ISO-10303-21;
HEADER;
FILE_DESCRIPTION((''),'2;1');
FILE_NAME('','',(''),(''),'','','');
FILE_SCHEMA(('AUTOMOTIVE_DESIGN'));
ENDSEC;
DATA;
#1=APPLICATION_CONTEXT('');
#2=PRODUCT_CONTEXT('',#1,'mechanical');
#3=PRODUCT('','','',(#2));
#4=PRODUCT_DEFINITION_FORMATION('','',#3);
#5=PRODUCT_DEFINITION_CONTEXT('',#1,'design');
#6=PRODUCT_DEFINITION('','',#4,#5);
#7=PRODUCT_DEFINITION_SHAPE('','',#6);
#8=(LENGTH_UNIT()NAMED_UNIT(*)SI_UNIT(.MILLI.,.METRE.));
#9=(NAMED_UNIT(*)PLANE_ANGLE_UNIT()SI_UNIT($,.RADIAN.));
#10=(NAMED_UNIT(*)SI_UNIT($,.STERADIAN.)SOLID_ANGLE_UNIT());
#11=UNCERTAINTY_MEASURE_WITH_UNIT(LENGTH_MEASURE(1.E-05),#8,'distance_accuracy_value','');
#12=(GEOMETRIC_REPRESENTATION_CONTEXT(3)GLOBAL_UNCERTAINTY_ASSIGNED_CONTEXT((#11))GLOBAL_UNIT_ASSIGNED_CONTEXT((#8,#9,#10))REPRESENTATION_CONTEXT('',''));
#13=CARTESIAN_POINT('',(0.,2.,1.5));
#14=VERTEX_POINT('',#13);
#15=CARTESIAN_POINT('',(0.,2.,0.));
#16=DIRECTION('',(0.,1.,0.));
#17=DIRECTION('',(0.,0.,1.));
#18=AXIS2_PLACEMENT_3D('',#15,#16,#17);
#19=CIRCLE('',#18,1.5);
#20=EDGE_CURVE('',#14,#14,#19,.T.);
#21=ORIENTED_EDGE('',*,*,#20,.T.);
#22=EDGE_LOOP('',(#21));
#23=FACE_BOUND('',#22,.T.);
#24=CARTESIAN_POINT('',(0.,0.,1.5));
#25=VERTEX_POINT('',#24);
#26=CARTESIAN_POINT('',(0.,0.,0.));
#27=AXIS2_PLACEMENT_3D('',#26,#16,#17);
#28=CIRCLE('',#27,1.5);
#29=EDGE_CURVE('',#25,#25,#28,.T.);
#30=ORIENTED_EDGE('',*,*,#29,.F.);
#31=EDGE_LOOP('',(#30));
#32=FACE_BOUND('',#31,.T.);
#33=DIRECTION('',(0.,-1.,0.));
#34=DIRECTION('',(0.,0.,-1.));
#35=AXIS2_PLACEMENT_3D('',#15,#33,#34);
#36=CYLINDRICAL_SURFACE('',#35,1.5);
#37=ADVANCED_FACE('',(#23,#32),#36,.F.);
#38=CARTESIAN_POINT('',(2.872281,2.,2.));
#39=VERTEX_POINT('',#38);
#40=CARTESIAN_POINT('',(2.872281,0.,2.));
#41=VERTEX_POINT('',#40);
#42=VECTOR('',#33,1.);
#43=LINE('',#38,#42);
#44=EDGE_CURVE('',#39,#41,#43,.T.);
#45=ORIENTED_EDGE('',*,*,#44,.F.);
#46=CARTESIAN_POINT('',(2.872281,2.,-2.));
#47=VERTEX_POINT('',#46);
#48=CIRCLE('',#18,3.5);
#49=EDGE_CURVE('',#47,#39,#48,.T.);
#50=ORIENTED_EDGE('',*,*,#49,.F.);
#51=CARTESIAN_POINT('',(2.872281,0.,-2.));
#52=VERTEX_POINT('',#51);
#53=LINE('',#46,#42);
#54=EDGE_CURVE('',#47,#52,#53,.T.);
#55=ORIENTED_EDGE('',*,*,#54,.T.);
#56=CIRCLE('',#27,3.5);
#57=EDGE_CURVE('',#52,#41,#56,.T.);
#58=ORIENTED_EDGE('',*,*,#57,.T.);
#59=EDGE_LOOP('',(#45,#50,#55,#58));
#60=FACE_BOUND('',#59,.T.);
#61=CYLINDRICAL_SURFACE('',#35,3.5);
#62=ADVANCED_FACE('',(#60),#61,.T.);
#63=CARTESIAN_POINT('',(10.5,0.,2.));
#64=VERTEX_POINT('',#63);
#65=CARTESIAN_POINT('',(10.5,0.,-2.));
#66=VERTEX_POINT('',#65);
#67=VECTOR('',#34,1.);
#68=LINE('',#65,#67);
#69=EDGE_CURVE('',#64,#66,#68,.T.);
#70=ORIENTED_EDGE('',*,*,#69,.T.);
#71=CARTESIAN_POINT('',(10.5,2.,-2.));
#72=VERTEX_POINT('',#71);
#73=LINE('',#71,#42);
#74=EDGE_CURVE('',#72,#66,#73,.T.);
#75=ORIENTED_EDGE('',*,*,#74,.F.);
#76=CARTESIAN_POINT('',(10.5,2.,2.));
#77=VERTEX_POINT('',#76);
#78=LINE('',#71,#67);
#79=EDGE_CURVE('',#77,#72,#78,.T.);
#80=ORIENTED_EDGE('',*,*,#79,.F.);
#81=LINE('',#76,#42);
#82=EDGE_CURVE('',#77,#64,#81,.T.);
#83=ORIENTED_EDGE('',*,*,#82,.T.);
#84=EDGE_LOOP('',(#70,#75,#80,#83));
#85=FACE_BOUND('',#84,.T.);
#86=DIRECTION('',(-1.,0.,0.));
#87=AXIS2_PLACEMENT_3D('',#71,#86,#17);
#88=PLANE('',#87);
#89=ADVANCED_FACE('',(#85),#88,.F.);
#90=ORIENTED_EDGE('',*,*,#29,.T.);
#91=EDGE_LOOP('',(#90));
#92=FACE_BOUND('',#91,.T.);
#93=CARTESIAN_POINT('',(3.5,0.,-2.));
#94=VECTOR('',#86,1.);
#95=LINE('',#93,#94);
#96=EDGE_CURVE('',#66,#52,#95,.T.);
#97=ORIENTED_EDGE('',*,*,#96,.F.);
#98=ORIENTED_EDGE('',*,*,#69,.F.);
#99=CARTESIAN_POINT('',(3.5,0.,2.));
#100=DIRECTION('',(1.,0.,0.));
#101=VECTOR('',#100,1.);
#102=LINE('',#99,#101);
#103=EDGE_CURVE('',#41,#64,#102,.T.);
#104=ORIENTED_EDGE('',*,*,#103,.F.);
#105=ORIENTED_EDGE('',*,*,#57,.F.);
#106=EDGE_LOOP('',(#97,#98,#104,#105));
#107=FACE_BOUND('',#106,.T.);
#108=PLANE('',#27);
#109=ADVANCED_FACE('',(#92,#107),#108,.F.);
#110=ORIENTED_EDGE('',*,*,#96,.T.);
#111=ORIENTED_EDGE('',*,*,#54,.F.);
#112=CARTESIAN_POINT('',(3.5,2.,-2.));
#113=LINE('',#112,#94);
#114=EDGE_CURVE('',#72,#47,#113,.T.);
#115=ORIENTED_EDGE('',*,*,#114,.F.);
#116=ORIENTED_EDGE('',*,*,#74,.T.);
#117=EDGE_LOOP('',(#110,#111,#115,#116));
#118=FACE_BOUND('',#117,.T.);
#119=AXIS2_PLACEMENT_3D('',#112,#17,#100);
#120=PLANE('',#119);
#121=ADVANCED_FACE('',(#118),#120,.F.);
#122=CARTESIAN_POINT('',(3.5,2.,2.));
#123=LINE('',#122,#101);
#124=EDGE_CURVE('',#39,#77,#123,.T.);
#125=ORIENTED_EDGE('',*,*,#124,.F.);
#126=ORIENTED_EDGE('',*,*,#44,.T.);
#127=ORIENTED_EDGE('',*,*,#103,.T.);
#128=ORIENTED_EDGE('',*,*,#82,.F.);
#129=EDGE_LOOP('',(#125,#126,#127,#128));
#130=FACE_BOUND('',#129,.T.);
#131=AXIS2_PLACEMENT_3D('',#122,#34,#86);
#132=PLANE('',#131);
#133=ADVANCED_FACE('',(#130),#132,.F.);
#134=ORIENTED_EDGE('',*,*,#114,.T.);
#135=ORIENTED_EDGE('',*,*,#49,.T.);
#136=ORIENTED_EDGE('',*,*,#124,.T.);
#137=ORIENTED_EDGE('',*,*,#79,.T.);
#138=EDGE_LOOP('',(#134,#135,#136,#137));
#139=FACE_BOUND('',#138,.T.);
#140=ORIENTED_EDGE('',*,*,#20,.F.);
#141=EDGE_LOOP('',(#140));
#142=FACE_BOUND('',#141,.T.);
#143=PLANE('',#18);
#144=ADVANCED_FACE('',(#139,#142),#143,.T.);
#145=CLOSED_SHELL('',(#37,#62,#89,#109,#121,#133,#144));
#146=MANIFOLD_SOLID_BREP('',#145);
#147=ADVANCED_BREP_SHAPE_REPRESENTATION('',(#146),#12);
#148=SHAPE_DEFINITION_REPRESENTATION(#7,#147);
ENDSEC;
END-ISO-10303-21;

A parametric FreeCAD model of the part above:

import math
import FreeCAD as App
import Part
import Sketcher
from FreeCAD import Vector

doc = App.newDocument("Part")
body = doc.addObject("PartDesign::Body", "Body")

sketch1 = body.newObject("Sketcher::SketchObject", "Sketch")
sketch1.AttachmentSupport = (doc.getObject("XZ_Plane"), [""])
sketch1.MapMode = "FlatFace"
sketch1.addGeometry([
    Part.LineSegment(Vector(10.5, 2, 0), Vector(10.5, -2, 0)),
    Part.LineSegment(Vector(10.5, -2, 0), Vector(2.9, -2, 0)),
    Part.ArcOfCircle(Part.Circle(Vector(0, 0, 0), Vector(0, 0, 1), 3.5), math.radians(35), math.radians(325)),
    Part.LineSegment(Vector(2.9, 2, 0), Vector(10.5, 2, 0)),
    Part.Circle(Vector(0, 0, 0), Vector(0, 0, 1), 1.5),
], False)
sketch1.addConstraint([
    Sketcher.Constraint("Coincident", 0, 2, 1, 1),
    Sketcher.Constraint("Coincident", 1, 2, 2, 2),
    Sketcher.Constraint("Coincident", 2, 1, 3, 1),
    Sketcher.Constraint("Coincident", 3, 2, 0, 1),
    Sketcher.Constraint("Vertical", 0),
    Sketcher.Constraint("Horizontal", 1),
    Sketcher.Constraint("Horizontal", 3),
    Sketcher.Constraint("Coincident", 2, 3, -1, 1),
    Sketcher.Constraint("Coincident", 4, 3, -1, 1),
    Sketcher.Constraint("Vertical", 1, 2, 2, 1),
    Sketcher.Constraint("Diameter", 4, 3.0),
    Sketcher.Constraint("Radius", 2, 3.5),
    Sketcher.Constraint("DistanceY", 0, 2, 0, 1, 4.0),
    Sketcher.Constraint("DistanceX", -1, 1, 0, 2, 10.5),
])
pad1 = body.newObject("PartDesign::Pad", "Pad")
pad1.Profile = sketch1
pad1.Length = 2
pad1.Reversed = True

doc.recompute()
